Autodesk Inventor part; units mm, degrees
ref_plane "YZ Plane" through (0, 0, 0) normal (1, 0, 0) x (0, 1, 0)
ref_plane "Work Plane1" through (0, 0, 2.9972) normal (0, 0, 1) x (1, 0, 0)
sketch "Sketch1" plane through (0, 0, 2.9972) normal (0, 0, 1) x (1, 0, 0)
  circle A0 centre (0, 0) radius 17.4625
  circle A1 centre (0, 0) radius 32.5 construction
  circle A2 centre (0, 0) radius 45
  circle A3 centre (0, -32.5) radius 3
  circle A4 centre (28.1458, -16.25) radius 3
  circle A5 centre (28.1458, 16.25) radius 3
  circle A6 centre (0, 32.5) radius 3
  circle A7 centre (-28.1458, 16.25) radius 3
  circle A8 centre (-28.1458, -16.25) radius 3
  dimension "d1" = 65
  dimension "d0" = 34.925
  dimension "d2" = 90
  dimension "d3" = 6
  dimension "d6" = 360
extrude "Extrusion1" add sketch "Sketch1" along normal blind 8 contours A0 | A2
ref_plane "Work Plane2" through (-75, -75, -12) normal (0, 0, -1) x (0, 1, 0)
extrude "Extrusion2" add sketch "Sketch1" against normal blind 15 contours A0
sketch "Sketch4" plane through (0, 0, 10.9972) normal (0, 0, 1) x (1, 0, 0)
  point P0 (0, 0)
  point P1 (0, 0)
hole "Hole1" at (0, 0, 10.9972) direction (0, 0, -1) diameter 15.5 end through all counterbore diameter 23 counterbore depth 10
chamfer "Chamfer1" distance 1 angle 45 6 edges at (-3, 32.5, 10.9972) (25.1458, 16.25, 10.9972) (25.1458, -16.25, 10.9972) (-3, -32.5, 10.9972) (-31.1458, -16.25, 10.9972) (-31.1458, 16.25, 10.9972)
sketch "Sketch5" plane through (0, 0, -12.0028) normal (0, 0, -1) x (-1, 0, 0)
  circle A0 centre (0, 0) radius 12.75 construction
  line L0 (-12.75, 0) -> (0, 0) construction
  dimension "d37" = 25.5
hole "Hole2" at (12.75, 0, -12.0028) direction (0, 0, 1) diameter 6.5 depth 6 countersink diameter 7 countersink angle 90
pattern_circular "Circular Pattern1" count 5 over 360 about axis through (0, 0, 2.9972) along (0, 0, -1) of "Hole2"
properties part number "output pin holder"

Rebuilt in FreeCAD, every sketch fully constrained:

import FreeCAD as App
import Part
import Sketcher


def edges_at(feature, points):
    """Names of the edges that pass closest to the given points."""
    edges = feature.Shape.Edges
    near = lambda p: min(range(len(edges)), key=lambda i: edges[i].distToShape(Part.Vertex(*p))[0])
    return sorted({f"Edge{near(p) + 1}" for p in points})

doc = App.newDocument("Part")
body = doc.addObject("PartDesign::Body", "Body")

# Sketch on XY plane
sketch1 = doc.addObject("Sketcher::SketchObject", "Sketch")
body.addObject(sketch1)
sketch1.AttachmentSupport = (doc.XY_Plane, [""])
sketch1.MapMode = "FlatFace"
sketch1.AttachmentOffset = App.Placement(App.Vector(0, 0, 2.9972), App.Rotation())
sketch1.addGeometry(Part.Circle(App.Vector(0, 0, 0), App.Vector(0, 0, 1), 45), False)
sketch1.addGeometry(Part.Circle(App.Vector(-28.1458, -16.25, 0), App.Vector(0, 0, 1), 3), False)
sketch1.addGeometry(Part.Circle(App.Vector(0, -32.5, 0), App.Vector(0, 0, 1), 3), False)
sketch1.addGeometry(Part.Circle(App.Vector(28.1458, -16.25, 0), App.Vector(0, 0, 1), 3), False)
sketch1.addGeometry(Part.Circle(App.Vector(-28.1458, 16.25, 0), App.Vector(0, 0, 1), 3), False)
sketch1.addGeometry(Part.Circle(App.Vector(0, 32.5, 0), App.Vector(0, 0, 1), 3), False)
sketch1.addGeometry(Part.Circle(App.Vector(28.1458, 16.25, 0), App.Vector(0, 0, 1), 3), False)
sketch1.addConstraint(Sketcher.Constraint("Coincident", 0, 3, -1, 1))
sketch1.addConstraint(Sketcher.Constraint("Equal", 1, 2))
sketch1.addConstraint(Sketcher.Constraint("Equal", 2, 3))
sketch1.addConstraint(Sketcher.Constraint("Equal", 3, 4))
sketch1.addConstraint(Sketcher.Constraint("Equal", 4, 5))
sketch1.addConstraint(Sketcher.Constraint("Equal", 5, 6))
sketch1.addConstraint(Sketcher.Constraint("Symmetric", 3, 3, 4, 3, -1, 1))
sketch1.addConstraint(Sketcher.Constraint("Symmetric", 2, 3, 5, 3, -1, 1))
sketch1.addConstraint(Sketcher.Constraint("Symmetric", 1, 3, 6, 3, -1, 1))
sketch1.addConstraint(Sketcher.Constraint("Symmetric", 1, 3, 3, 3, -2))
sketch1.addConstraint(Sketcher.Constraint("PointOnObject", 2, 3, -2))
sketch1.addConstraint(Sketcher.Constraint("Diameter", 0, 90.0))
sketch1.addConstraint(Sketcher.Constraint("Diameter", 1, 6.0))
sketch1.addConstraint(Sketcher.Constraint("DistanceY", 2, 3, 5, 3, 65.0))
sketch1.addConstraint(Sketcher.Constraint("DistanceY", 1, 3, 4, 3, 32.5))
sketch1.addConstraint(Sketcher.Constraint("DistanceX", 1, 3, -1, 1, 28.1458))
pad1 = doc.addObject("PartDesign::Pad", "Pad")
body.addObject(pad1)
pad1.Profile = sketch1
pad1.Length = 8

# Sketch on XY plane
sketch2 = doc.addObject("Sketcher::SketchObject", "Sketch001")
body.addObject(sketch2)
sketch2.AttachmentSupport = (doc.XY_Plane, [""])
sketch2.MapMode = "FlatFace"
sketch2.AttachmentOffset = App.Placement(App.Vector(0, 0, 2.9972), App.Rotation())
sketch2.addGeometry(Part.Circle(App.Vector(0, 0, 0), App.Vector(0, 0, 1), 17.4625), False)
sketch2.addConstraint(Sketcher.Constraint("Coincident", 0, 3, -1, 1))
sketch2.addConstraint(Sketcher.Constraint("Diameter", 0, 34.925))
pad2 = doc.addObject("PartDesign::Pad", "Pad001")
body.addObject(pad2)
pad2.Profile = sketch2
pad2.Length = 15
pad2.Reversed = True

# Sketch on XY plane
sketch3 = doc.addObject("Sketcher::SketchObject", "Sketch002")
body.addObject(sketch3)
sketch3.AttachmentSupport = (doc.XY_Plane, [""])
sketch3.MapMode = "FlatFace"
sketch3.AttachmentOffset = App.Placement(App.Vector(0, 0, 10.9972), App.Rotation())
sketch3.addGeometry(Part.Circle(App.Vector(0, 0, 0), App.Vector(0, 0, 1), 7.75), False)
sketch3.addConstraint(Sketcher.Constraint("Coincident", 0, 3, -1, 1))
sketch3.addConstraint(Sketcher.Constraint("Diameter", 0, 15.5))
doc.recompute()
hole = doc.addObject("PartDesign::Hole", "Hole")
body.addObject(hole)
hole.Profile = sketch3
hole.ThreadType = "None"
hole.Diameter = 15.5
hole.DepthType = "ThroughAll"
hole.HoleCutType = "Counterbore"
hole.HoleCutDiameter = 23
hole.HoleCutDepth = 10
doc.recompute()

chamfer = doc.addObject("PartDesign::Chamfer", "Chamfer")
body.addObject(chamfer)
chamfer.Base = (hole, edges_at(hole, [
    (-3, 32.5, 10.997),
    (25.146, 16.25, 10.997),
    (25.146, -16.25, 10.997),
    (-3, -32.5, 10.997),
    (-31.146, -16.25, 10.997),
    (-31.146, 16.25, 10.997),
]))
chamfer.Size = 1

# Sketch on XY plane
sketch4 = doc.addObject("Sketcher::SketchObject", "Sketch003")
body.addObject(sketch4)
sketch4.AttachmentSupport = (doc.XY_Plane, [""])
sketch4.MapMode = "FlatFace"
sketch4.AttachmentOffset = App.Placement(App.Vector(0, 0, -12.0028), App.Rotation())
sketch4.addGeometry(Part.Circle(App.Vector(12.75, 0, 0), App.Vector(0, 0, 1), 3.25), False)
sketch4.addConstraint(Sketcher.Constraint("PointOnObject", 0, 3, -1))
sketch4.addConstraint(Sketcher.Constraint("Diameter", 0, 6.5))
sketch4.addConstraint(Sketcher.Constraint("DistanceX", -1, 1, 0, 3, 12.75))
doc.recompute()
hole2 = doc.addObject("PartDesign::Hole", "Hole001")
body.addObject(hole2)
hole2.Profile = sketch4
hole2.ThreadType = "None"
hole2.Diameter = 6.5
hole2.DepthType = "Dimension"
hole2.Depth = 6
hole2.DrillPoint = "Flat"
hole2.HoleCutType = "Countersink"
hole2.HoleCutDiameter = 7
hole2.HoleCutCountersinkAngle = 90
hole2.Reversed = True
doc.recompute()

polarpattern = doc.addObject("PartDesign::PolarPattern", "PolarPattern")
body.addObject(polarpattern)
polarpattern.Originals = [hole2]
polarpattern.Axis = (doc.Z_Axis, [""])
polarpattern.Angle = 360
polarpattern.Occurrences = 5
body.Tip = polarpattern

doc.recompute()
